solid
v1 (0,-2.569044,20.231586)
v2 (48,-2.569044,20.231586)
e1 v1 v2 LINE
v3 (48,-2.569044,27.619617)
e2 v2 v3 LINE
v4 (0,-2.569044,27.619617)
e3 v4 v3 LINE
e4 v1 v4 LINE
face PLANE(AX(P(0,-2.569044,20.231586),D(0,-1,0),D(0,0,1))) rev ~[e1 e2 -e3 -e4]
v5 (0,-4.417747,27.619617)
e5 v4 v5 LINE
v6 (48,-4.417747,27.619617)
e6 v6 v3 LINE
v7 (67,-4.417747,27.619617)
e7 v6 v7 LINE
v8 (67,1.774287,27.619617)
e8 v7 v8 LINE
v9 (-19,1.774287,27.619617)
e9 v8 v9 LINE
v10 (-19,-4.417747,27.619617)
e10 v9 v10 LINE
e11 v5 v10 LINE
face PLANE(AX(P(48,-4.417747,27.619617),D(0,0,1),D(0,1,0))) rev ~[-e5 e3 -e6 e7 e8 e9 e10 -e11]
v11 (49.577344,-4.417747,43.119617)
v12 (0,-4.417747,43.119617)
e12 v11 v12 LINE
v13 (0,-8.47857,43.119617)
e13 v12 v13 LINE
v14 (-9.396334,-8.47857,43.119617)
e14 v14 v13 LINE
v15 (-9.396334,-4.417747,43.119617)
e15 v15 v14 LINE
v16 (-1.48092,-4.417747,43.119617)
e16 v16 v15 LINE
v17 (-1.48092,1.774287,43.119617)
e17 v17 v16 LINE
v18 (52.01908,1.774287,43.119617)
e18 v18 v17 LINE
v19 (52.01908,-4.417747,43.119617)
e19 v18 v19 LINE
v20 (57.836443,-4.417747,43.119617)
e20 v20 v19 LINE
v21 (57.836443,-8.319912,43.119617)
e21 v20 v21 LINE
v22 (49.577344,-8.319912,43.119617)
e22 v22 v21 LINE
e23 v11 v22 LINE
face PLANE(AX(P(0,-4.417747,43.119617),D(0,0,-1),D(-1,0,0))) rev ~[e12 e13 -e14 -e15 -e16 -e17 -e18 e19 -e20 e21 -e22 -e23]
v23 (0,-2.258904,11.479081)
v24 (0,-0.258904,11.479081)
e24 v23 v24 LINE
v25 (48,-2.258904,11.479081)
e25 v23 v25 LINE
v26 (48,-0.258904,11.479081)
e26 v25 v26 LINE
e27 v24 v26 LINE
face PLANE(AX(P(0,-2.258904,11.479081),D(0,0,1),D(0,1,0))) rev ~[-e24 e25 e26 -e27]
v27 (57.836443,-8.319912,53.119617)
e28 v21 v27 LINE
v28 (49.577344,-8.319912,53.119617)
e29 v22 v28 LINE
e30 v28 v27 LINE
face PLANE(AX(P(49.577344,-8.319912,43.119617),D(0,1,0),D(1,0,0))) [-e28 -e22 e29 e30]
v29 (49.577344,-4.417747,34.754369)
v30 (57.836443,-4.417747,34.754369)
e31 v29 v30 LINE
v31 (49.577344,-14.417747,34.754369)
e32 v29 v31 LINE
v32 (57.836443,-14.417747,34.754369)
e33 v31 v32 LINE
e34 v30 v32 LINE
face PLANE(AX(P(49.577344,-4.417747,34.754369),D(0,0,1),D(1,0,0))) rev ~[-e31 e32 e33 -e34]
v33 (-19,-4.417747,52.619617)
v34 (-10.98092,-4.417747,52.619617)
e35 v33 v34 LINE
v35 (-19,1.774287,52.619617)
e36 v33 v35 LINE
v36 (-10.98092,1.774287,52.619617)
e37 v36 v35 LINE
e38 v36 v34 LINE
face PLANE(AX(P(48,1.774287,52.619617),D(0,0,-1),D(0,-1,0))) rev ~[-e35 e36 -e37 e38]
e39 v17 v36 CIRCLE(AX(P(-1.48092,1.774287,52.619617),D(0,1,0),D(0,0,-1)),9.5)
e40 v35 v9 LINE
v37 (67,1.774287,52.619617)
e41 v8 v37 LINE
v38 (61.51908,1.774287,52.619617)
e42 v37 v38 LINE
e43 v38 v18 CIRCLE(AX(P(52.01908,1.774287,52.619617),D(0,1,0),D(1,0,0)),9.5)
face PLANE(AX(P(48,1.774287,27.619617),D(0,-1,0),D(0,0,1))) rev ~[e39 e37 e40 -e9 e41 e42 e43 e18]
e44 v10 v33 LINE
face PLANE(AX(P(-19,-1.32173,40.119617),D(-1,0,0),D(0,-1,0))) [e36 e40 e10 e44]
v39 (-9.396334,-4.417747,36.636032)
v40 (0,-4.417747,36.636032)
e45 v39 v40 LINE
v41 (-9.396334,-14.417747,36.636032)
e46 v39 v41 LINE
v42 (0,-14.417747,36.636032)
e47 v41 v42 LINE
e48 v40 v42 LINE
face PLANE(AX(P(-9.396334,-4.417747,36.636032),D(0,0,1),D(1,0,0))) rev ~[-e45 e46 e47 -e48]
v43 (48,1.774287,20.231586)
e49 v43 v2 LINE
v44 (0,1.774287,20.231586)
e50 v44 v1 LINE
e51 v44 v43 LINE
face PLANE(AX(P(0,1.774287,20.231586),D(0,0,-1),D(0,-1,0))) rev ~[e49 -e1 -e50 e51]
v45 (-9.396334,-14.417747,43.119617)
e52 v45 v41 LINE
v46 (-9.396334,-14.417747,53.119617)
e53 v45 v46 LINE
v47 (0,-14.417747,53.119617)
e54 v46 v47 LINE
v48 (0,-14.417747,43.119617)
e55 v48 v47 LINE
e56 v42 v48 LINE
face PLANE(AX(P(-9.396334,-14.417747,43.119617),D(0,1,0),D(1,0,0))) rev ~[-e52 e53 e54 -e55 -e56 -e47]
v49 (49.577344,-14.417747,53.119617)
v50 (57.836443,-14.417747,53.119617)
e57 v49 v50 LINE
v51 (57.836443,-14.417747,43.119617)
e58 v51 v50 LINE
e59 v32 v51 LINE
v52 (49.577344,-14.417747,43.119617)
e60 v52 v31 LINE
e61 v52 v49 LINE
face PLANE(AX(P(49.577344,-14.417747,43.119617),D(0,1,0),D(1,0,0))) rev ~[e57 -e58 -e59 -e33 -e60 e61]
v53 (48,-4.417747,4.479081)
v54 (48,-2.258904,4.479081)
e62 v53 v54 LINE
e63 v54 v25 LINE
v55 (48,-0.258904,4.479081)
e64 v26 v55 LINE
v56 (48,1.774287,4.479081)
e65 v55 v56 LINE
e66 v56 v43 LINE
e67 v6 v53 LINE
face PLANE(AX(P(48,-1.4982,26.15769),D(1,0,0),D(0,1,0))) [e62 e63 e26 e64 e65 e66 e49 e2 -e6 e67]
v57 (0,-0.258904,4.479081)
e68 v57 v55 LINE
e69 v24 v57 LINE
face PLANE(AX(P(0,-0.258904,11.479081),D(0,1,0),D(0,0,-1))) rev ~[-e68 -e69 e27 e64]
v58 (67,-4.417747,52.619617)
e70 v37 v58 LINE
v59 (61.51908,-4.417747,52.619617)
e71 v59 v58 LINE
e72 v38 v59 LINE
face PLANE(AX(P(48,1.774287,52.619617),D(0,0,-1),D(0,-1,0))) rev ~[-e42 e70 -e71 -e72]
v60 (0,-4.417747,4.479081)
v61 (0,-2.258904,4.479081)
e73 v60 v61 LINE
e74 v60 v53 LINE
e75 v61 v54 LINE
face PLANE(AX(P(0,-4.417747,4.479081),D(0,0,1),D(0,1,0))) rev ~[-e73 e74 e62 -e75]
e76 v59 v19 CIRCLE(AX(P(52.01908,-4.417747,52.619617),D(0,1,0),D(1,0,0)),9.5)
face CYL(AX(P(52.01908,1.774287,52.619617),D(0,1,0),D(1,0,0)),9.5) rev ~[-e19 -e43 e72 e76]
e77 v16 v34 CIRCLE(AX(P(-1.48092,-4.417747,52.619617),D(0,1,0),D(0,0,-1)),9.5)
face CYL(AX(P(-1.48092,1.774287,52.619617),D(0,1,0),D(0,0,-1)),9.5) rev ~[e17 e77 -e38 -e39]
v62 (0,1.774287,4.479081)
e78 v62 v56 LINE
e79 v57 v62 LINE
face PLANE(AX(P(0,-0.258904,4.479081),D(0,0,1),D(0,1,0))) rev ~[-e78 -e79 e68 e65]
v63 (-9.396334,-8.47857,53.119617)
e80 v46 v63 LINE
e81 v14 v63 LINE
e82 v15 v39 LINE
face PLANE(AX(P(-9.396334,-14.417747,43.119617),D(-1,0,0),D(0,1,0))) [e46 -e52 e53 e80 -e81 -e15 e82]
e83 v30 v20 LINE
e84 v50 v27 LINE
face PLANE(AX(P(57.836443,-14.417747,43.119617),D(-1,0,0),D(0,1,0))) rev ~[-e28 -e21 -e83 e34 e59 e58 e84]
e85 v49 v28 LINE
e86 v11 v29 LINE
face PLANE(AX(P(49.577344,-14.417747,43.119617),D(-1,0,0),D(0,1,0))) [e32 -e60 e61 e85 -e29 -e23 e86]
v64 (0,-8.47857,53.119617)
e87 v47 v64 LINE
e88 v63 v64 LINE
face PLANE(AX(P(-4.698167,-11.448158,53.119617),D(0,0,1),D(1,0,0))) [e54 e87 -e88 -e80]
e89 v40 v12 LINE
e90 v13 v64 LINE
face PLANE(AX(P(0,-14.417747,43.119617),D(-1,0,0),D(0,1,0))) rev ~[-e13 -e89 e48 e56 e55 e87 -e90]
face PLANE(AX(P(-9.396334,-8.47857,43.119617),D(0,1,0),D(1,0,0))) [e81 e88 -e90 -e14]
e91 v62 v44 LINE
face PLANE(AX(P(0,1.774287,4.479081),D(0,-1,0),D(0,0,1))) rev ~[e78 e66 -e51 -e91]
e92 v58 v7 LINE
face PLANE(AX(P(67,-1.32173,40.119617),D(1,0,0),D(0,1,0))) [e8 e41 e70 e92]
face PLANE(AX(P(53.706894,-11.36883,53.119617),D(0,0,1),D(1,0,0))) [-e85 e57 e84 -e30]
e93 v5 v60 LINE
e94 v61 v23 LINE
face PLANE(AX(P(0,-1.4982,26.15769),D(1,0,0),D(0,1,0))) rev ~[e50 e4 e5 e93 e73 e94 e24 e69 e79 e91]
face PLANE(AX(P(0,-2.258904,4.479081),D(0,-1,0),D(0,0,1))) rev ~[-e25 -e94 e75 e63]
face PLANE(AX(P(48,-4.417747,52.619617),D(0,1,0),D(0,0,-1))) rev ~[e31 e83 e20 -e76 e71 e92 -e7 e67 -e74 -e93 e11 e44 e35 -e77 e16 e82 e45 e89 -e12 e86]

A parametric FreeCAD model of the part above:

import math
import FreeCAD as App
import Part
import Sketcher

V = App.Vector


def add_polygon(sketch, points):
    """Adds a closed chain of lines whose ends are joined by coincident constraints."""
    first, n = sketch.GeometryCount, len(points)
    for a, b in zip(points, points[1:] + points[:1]):
        sketch.addGeometry(Part.LineSegment(App.Vector(*a, 0), App.Vector(*b, 0)), False)
    for i in range(n):
        sketch.addConstraint(Sketcher.Constraint("Coincident", first + i, 2, first + (i + 1) % n, 1))

doc = App.newDocument("Part")
params = doc.addObject("Spreadsheet::Sheet", "Params")
for row, (alias, value) in enumerate([
    ("sketch1_width", "2 mm"),
    ("sketch1_height", "7 mm"),
    ("sketch1_height2", "25 mm"),
    ("pad1_length", "48 mm"),
    ("sketch2_height", "25 mm"),
    ("pad2_length", "19 mm"),
    ("sketch3_height", "25 mm"),
    ("pad3_length", "19 mm"),
    ("sketch4_radius", "9.5 mm"),
    ("sketch4_width", "53.5 mm"),
    ("pocket1_length", "25 mm"),
    ("pad4_length", "10 mm"),
    ("pad5_length", "10 mm"),
    ("pad6_length", "10 mm"),
], start=1):
    params.set(f"A{row}", alias)
    params.set(f"B{row}", "=" + value)
    params.setAlias(f"B{row}", alias)

body = doc.addObject("PartDesign::Body", "Body")

# Sketch on YZ plane
sketch1 = doc.addObject("Sketcher::SketchObject", "Sketch")
body.addObject(sketch1)
sketch1.AttachmentSupport = (doc.YZ_Plane, [""])
sketch1.MapMode = "FlatFace"
add_polygon(sketch1, [(-4.417747, 4.479081), (-2.258904, 4.479081), (-2.258904, 11.479081), (-0.258904, 11.479081), (-0.258904, 4.479081), (1.774287, 4.479081), (1.774287, 20.231586), (-2.569044, 20.231586), (-2.569044, 27.619617), (1.774287, 27.619617), (1.774287, 52.619617), (-4.417747, 52.619617)])  # lines 0-11
sketch1.addConstraint([
    Sketcher.Constraint("Horizontal", 0),
    Sketcher.Constraint("Vertical", 1),
    Sketcher.Constraint("Horizontal", 2),
    Sketcher.Constraint("Vertical", 3),
    Sketcher.Constraint("Horizontal", 4),
    Sketcher.Constraint("Vertical", 5),
    Sketcher.Constraint("Horizontal", 6),
    Sketcher.Constraint("Vertical", 7),
    Sketcher.Constraint("Horizontal", 8),
    Sketcher.Constraint("Vertical", 9),
    Sketcher.Constraint("Horizontal", 10),
    Sketcher.Constraint("Vertical", 11),
    Sketcher.Constraint("Horizontal", 0, 2, 3, 2),
    Sketcher.Constraint("Vertical", 5, 2, 8, 2),
    Sketcher.Constraint("DistanceX", 2, 1, 2, 2, 2.0),
    Sketcher.Constraint("DistanceY", 1, 1, 1, 2, 7.0),
    Sketcher.Constraint("DistanceY", 9, 1, 9, 2, 25.0),
    Sketcher.Constraint("DistanceX", 4, 1, 4, 2, 2.033191),
    Sketcher.Constraint("DistanceX", 6, 2, 6, 1, 4.34333),
    Sketcher.Constraint("DistanceY", 7, 1, 7, 2, 7.388031),
    Sketcher.Constraint("DistanceX", 0, 1, 0, 2, 2.158843),
    Sketcher.Constraint("DistanceY", 5, 1, 5, 2, 15.752505),
    Sketcher.Constraint("DistanceY", -1, 1, 0, 2, 4.479081),
    Sketcher.Constraint("DistanceX", 0, 2, -1, 1, 2.258904),
])
sketch1.setExpression("Constraints[26]", "Params.sketch1_width")
sketch1.setExpression("Constraints[27]", "Params.sketch1_height")
sketch1.setExpression("Constraints[28]", "Params.sketch1_height2")
pad1 = doc.addObject("PartDesign::Pad", "Pad")
body.addObject(pad1)
pad1.Profile = sketch1
pad1.setExpression("Length", "Params.pad1_length")

# Sketch on YZ plane
sketch2 = doc.addObject("Sketcher::SketchObject", "Sketch001")
body.addObject(sketch2)
sketch2.AttachmentSupport = (doc.YZ_Plane, [""])
sketch2.MapMode = "FlatFace"
add_polygon(sketch2, [(-4.417747, 27.619617), (-4.417747, 52.619617), (1.774287, 52.619617), (1.774287, 27.619617)])  # lines 0-3
sketch2.addConstraint([
    Sketcher.Constraint("Vertical", 0),
    Sketcher.Constraint("Horizontal", 1),
    Sketcher.Constraint("Vertical", 2),
    Sketcher.Constraint("Horizontal", 3),
    Sketcher.Constraint("DistanceY", 0, 1, 0, 2, 25.0),
    Sketcher.Constraint("DistanceX", 1, 1, 1, 2, 6.192034),
    Sketcher.Constraint("DistanceX", 0, 2, -1, 1, 4.417747),
    Sketcher.Constraint("DistanceY", -1, 1, 0, 2, 52.619617),
])
sketch2.setExpression("Constraints[8]", "Params.sketch2_height")
pad2 = doc.addObject("PartDesign::Pad", "Pad001")
body.addObject(pad2)
pad2.Profile = sketch2
pad2.setExpression("Length", "Params.pad2_length")
pad2.Reversed = True

# Sketch on YZ plane
sketch3 = doc.addObject("Sketcher::SketchObject", "Sketch002")
body.addObject(sketch3)
sketch3.AttachmentSupport = (doc.YZ_Plane, [""])
sketch3.MapMode = "FlatFace"
sketch3.AttachmentOffset = App.Placement(V(0, 0, 48), App.Rotation())
add_polygon(sketch3, [(1.774287, 52.619617), (-4.417747, 52.619617), (-4.417747, 27.619617), (1.774287, 27.619617)])  # lines 0-3
sketch3.addConstraint([
    Sketcher.Constraint("Horizontal", 0),
    Sketcher.Constraint("Vertical", 1),
    Sketcher.Constraint("Horizontal", 2),
    Sketcher.Constraint("Vertical", 3),
    Sketcher.Constraint("DistanceY", 1, 2, 1, 1, 25.0),
    Sketcher.Constraint("DistanceX", 0, 2, 0, 1, 6.192034),
    Sketcher.Constraint("DistanceX", 0, 2, -1, 1, 4.417747),
    Sketcher.Constraint("DistanceY", -1, 1, 0, 2, 52.619617),
])
sketch3.setExpression("Constraints[8]", "Params.sketch3_height")
pad3 = doc.addObject("PartDesign::Pad", "Pad002")
body.addObject(pad3)
pad3.Profile = sketch3
pad3.setExpression("Length", "Params.pad3_length")

# Sketch on XZ plane
sketch4 = doc.addObject("Sketcher::SketchObject", "Sketch003")
body.addObject(sketch4)
sketch4.AttachmentSupport = (doc.XZ_Plane, [""])
sketch4.MapMode = "FlatFace"
sketch4.AttachmentOffset = App.Placement(V(0, 0, -1.774287), App.Rotation())
sketch4.addGeometry([
    Part.ArcOfCircle(Part.Circle(V(52.01908, 52.619617, 0), V(0, 0, 1), 9.5), math.radians(-90), math.radians(0)),
    Part.LineSegment(V(52.01908, 43.119617, 0), V(-1.48092, 43.119617, 0)),
    Part.ArcOfCircle(Part.Circle(V(-1.48092, 52.619617, 0), V(0, 0, 1), 9.5), math.radians(180), math.radians(270)),
    Part.LineSegment(V(-10.98092, 52.619617, 0), V(61.51908, 52.619617, 0)),
], False)
sketch4.addConstraint([
    Sketcher.Constraint("Tangent", 0, 1, 1, 1),
    Sketcher.Constraint("Tangent", 1, 2, 2, 2),
    Sketcher.Constraint("Coincident", 2, 1, 3, 1),
    Sketcher.Constraint("Coincident", 3, 2, 0, 2),
    Sketcher.Constraint("Horizontal", 1),
    Sketcher.Constraint("Horizontal", 3),
    Sketcher.Constraint("Equal", 0, 2),
    Sketcher.Constraint("Horizontal", 0, 3, 2, 1),
    Sketcher.Constraint("Radius", 0, 9.5),
    Sketcher.Constraint("DistanceX", 1, 2, 1, 1, 53.5),
    Sketcher.Constraint("DistanceX", -1, 1, 0, 3, 52.01908),
    Sketcher.Constraint("DistanceY", -1, 1, 0, 3, 52.619617),
])
sketch4.setExpression("Constraints[8]", "Params.sketch4_radius")
sketch4.setExpression("Constraints[9]", "Params.sketch4_width")
pocket1 = doc.addObject("PartDesign::Pocket", "Pocket")
body.addObject(pocket1)
pocket1.Profile = sketch4
pocket1.setExpression("Length", "Params.pocket1_length")
pocket1.Reversed = True

# Sketch on XZ plane
sketch5 = doc.addObject("Sketcher::SketchObject", "Sketch004")
body.addObject(sketch5)
sketch5.AttachmentSupport = (doc.XZ_Plane, [""])
sketch5.MapMode = "FlatFace"
sketch5.AttachmentOffset = App.Placement(V(0, 0, 4.417747), App.Rotation())
add_polygon(sketch5, [(0, 36.636032), (0, 43.119617), (-9.396334, 43.119617), (-9.396334, 36.636032)])  # lines 0-3
add_polygon(sketch5, [(49.577344, 43.119617), (49.577344, 34.754369), (57.836443, 34.754369), (57.836443, 43.119617)])  # lines 4-7
sketch5.addConstraint([
    Sketcher.Constraint("Vertical", 0),
    Sketcher.Constraint("Horizontal", 1),
    Sketcher.Constraint("Vertical", 2),
    Sketcher.Constraint("Horizontal", 3),
    Sketcher.Constraint("Vertical", 4),
    Sketcher.Constraint("Horizontal", 5),
    Sketcher.Constraint("Vertical", 6),
    Sketcher.Constraint("Horizontal", 7),
    Sketcher.Constraint("PointOnObject", 0, 2, -2),
    Sketcher.Constraint("Horizontal", 1, 2, 6, 2),
    Sketcher.Constraint("DistanceX", 5, 1, 5, 2, 8.259099),
    Sketcher.Constraint("DistanceY", 4, 2, 4, 1, 8.365248),
    Sketcher.Constraint("DistanceX", 1, 2, 1, 1, 9.396334),
    Sketcher.Constraint("DistanceY", 0, 1, 0, 2, 6.483585),
    Sketcher.Constraint("DistanceY", -1, 1, 4, 2, 34.754369),
    Sketcher.Constraint("DistanceX", 2, 2, 4, 2, 58.973678),
])
pad4 = doc.addObject("PartDesign::Pad", "Pad003")
body.addObject(pad4)
pad4.Profile = sketch5
pad4.setExpression("Length", "Params.pad4_length")

# Sketch on XY plane
sketch6 = doc.addObject("Sketcher::SketchObject", "Sketch005")
body.addObject(sketch6)
sketch6.AttachmentSupport = (doc.XY_Plane, [""])
sketch6.MapMode = "FlatFace"
sketch6.AttachmentOffset = App.Placement(V(0, 0, 43.119617), App.Rotation())
add_polygon(sketch6, [(-9.396334, -8.47857), (-9.396334, -14.417747), (0, -14.417747), (0, -8.47857)])  # lines 0-3
sketch6.addConstraint([
    Sketcher.Constraint("Vertical", 0),
    Sketcher.Constraint("Horizontal", 1),
    Sketcher.Constraint("Vertical", 2),
    Sketcher.Constraint("Horizontal", 3),
    Sketcher.Constraint("PointOnObject", 1, 2, -2),
    Sketcher.Constraint("DistanceX", 1, 1, 1, 2, 9.396334),
    Sketcher.Constraint("DistanceY", 0, 2, 0, 1, 5.939177),
    Sketcher.Constraint("DistanceY", 2, 2, -1, 1, 8.47857),
])
pad5 = doc.addObject("PartDesign::Pad", "Pad004")
body.addObject(pad5)
pad5.Profile = sketch6
pad5.setExpression("Length", "Params.pad5_length")

# Sketch on XY plane
sketch7 = doc.addObject("Sketcher::SketchObject", "Sketch006")
body.addObject(sketch7)
sketch7.AttachmentSupport = (doc.XY_Plane, [""])
sketch7.MapMode = "FlatFace"
sketch7.AttachmentOffset = App.Placement(V(0, 0, 43.119617), App.Rotation())
add_polygon(sketch7, [(49.577344, -8.319912), (49.577344, -14.417747), (57.836443, -14.417747), (57.836443, -8.319912)])  # lines 0-3
sketch7.addConstraint([
    Sketcher.Constraint("Vertical", 0),
    Sketcher.Constraint("Horizontal", 1),
    Sketcher.Constraint("Vertical", 2),
    Sketcher.Constraint("Horizontal", 3),
    Sketcher.Constraint("DistanceX", 1, 1, 1, 2, 8.259099),
    Sketcher.Constraint("DistanceY", 0, 2, 0, 1, 6.097835),
    Sketcher.Constraint("DistanceX", -1, 1, 0, 2, 49.577344),
    Sketcher.Constraint("DistanceY", 0, 2, -1, 1, 14.417747),
])
pad6 = doc.addObject("PartDesign::Pad", "Pad005")
body.addObject(pad6)
pad6.Profile = sketch7
pad6.setExpression("Length", "Params.pad6_length")

doc.recompute()
